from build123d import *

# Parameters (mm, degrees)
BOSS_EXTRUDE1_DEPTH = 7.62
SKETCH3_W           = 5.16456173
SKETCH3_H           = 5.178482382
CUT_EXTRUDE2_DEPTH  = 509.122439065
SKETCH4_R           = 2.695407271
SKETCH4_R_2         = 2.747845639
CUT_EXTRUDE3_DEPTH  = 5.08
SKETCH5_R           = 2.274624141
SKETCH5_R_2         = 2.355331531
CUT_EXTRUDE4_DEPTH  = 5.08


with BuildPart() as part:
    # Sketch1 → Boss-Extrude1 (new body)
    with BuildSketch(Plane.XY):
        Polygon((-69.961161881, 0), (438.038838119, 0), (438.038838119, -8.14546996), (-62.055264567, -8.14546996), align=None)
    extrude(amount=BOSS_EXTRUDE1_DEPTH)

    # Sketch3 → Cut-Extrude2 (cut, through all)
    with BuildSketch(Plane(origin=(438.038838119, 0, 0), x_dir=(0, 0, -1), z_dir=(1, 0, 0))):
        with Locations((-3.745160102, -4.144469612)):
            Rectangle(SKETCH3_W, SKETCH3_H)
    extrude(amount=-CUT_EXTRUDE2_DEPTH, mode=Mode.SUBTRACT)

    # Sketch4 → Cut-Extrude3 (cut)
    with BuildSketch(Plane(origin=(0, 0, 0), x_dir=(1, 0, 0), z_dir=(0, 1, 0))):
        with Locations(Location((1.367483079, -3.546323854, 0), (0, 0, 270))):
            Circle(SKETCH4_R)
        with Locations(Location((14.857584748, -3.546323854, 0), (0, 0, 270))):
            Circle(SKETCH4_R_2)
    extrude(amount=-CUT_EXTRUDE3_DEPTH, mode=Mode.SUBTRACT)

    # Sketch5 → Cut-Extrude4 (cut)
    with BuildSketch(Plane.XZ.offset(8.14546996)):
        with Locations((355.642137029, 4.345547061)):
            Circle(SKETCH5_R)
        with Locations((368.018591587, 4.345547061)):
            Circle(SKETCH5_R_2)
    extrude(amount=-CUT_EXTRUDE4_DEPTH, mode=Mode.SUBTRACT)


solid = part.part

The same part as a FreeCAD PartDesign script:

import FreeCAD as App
import Part
import Sketcher
Q = App.Units.Quantity


def add_polygon(sketch, points):
    """Adds a closed chain of lines whose ends are joined by coincident constraints."""
    first, n = sketch.GeometryCount, len(points)
    for a, b in zip(points, points[1:] + points[:1]):
        sketch.addGeometry(Part.LineSegment(App.Vector(*a, 0), App.Vector(*b, 0)), False)
    for i in range(n):
        sketch.addConstraint(Sketcher.Constraint("Coincident", first + i, 2, first + (i + 1) % n, 1))

doc = App.newDocument("Part")
body = doc.addObject("PartDesign::Body", "Body")

# Sketch on XY plane
sketch1 = body.newObject("Sketcher::SketchObject", "Sketch")
sketch1.AttachmentSupport = (doc.getObject("XY_Plane"), [""])
sketch1.MapMode = "FlatFace"
add_polygon(sketch1, [(438.038838, 0), (-69.961162, 0), (-62.055265, -8.14547), (438.038838, -8.14547)])  # lines 0-3
sketch1.addConstraint([
    Sketcher.Constraint("Horizontal", 0),
    Sketcher.Constraint("Horizontal", 2),
    Sketcher.Constraint("Vertical", 3),
    Sketcher.Constraint("PointOnObject", 0, 2, -1),
    Sketcher.Constraint("DistanceX", 0, 2, 0, 1, Q("20 in")),
    Sketcher.Constraint("DistanceY", 3, 1, 3, 2, Q("8.14547 mm")),
    Sketcher.Constraint("DistanceX", 2, 1, 2, 2, Q("500.094103 mm")),
    Sketcher.Constraint("DistanceX", 0, 2, -1, 1, Q("69.961162 mm")),
])
pad1 = body.newObject("PartDesign::Pad", "Pad")
pad1.Profile = sketch1
pad1.Length = Q("0.3 in")

# Sketch on YZ plane
sketch2 = body.newObject("Sketcher::SketchObject", "Sketch001")
sketch2.AttachmentSupport = (doc.getObject("YZ_Plane"), [""])
sketch2.MapMode = "FlatFace"
sketch2.AttachmentOffset = App.Placement(App.Vector(0, 0, 438.038838), App.Rotation())
add_polygon(sketch2, [(-1.555228, 6.327441), (-6.733711, 6.327441), (-6.733711, 1.162879), (-1.555228, 1.162879)])  # lines 0-3
sketch2.addConstraint([
    Sketcher.Constraint("Horizontal", 0),
    Sketcher.Constraint("Vertical", 1),
    Sketcher.Constraint("Horizontal", 2),
    Sketcher.Constraint("Vertical", 3),
    Sketcher.Constraint("DistanceY", 1, 2, 1, 1, Q("5.164562 mm")),
    Sketcher.Constraint("DistanceX", 0, 2, 0, 1, Q("5.178482 mm")),
    Sketcher.Constraint("DistanceX", 0, 2, -1, 1, Q("6.733711 mm")),
    Sketcher.Constraint("DistanceY", -1, 1, 0, 2, Q("6.327441 mm")),
])
pocket1 = body.newObject("PartDesign::Pocket", "Pocket")
pocket1.Profile = sketch2
pocket1.Type = "ThroughAll"

# Sketch on XZ plane
sketch3 = body.newObject("Sketcher::SketchObject", "Sketch002")
sketch3.AttachmentSupport = (doc.getObject("XZ_Plane"), [""])
sketch3.MapMode = "FlatFace"
sketch3.addGeometry([
    Part.Circle(App.Vector(1.367483, 3.546324, 0), App.Vector(0, 0, 1), 2.695407),
    Part.Circle(App.Vector(14.857585, 3.546324, 0), App.Vector(0, 0, 1), 2.747846),
], False)
sketch3.addConstraint([
    Sketcher.Constraint("Horizontal", 0, 3, 1, 3),
    Sketcher.Constraint("Diameter", 1, Q("5.495691 mm")),
    Sketcher.Constraint("Diameter", 0, Q("5.390815 mm")),
    Sketcher.Constraint("DistanceX", 0, 3, 1, 3, Q("13.490102 mm")),
    Sketcher.Constraint("DistanceX", -1, 1, 0, 3, Q("1.367483 mm")),
    Sketcher.Constraint("DistanceY", -1, 1, 0, 3, Q("3.546324 mm")),
])
pocket2 = body.newObject("PartDesign::Pocket", "Pocket001")
pocket2.Profile = sketch3
pocket2.Length = Q("0.2 in")
pocket2.Reversed = True

# Sketch on XZ plane
sketch4 = body.newObject("Sketcher::SketchObject", "Sketch003")
sketch4.AttachmentSupport = (doc.getObject("XZ_Plane"), [""])
sketch4.MapMode = "FlatFace"
sketch4.AttachmentOffset = App.Placement(App.Vector(0, 0, 8.14547), App.Rotation())
sketch4.addGeometry([
    Part.Circle(App.Vector(355.642137, 4.345547, 0), App.Vector(0, 0, 1), 2.274624),
    Part.Circle(App.Vector(368.018592, 4.345547, 0), App.Vector(0, 0, 1), 2.355332),
], False)
sketch4.addConstraint([
    Sketcher.Constraint("Horizontal", 0, 3, 1, 3),
    Sketcher.Constraint("Diameter", 0, Q("4.549248 mm")),
    Sketcher.Constraint("Diameter", 1, Q("4.710663 mm")),
    Sketcher.Constraint("DistanceX", -1, 1, 1, 3, Q("368.018592 mm")),
    Sketcher.Constraint("DistanceX", -1, 1, 0, 3, Q("355.642137 mm")),
    Sketcher.Constraint("DistanceY", -1, 1, 0, 3, Q("4.345547 mm")),
])
pocket3 = body.newObject("PartDesign::Pocket", "Pocket002")
pocket3.Profile = sketch4
pocket3.Length = Q("0.2 in")

doc.recompute()
